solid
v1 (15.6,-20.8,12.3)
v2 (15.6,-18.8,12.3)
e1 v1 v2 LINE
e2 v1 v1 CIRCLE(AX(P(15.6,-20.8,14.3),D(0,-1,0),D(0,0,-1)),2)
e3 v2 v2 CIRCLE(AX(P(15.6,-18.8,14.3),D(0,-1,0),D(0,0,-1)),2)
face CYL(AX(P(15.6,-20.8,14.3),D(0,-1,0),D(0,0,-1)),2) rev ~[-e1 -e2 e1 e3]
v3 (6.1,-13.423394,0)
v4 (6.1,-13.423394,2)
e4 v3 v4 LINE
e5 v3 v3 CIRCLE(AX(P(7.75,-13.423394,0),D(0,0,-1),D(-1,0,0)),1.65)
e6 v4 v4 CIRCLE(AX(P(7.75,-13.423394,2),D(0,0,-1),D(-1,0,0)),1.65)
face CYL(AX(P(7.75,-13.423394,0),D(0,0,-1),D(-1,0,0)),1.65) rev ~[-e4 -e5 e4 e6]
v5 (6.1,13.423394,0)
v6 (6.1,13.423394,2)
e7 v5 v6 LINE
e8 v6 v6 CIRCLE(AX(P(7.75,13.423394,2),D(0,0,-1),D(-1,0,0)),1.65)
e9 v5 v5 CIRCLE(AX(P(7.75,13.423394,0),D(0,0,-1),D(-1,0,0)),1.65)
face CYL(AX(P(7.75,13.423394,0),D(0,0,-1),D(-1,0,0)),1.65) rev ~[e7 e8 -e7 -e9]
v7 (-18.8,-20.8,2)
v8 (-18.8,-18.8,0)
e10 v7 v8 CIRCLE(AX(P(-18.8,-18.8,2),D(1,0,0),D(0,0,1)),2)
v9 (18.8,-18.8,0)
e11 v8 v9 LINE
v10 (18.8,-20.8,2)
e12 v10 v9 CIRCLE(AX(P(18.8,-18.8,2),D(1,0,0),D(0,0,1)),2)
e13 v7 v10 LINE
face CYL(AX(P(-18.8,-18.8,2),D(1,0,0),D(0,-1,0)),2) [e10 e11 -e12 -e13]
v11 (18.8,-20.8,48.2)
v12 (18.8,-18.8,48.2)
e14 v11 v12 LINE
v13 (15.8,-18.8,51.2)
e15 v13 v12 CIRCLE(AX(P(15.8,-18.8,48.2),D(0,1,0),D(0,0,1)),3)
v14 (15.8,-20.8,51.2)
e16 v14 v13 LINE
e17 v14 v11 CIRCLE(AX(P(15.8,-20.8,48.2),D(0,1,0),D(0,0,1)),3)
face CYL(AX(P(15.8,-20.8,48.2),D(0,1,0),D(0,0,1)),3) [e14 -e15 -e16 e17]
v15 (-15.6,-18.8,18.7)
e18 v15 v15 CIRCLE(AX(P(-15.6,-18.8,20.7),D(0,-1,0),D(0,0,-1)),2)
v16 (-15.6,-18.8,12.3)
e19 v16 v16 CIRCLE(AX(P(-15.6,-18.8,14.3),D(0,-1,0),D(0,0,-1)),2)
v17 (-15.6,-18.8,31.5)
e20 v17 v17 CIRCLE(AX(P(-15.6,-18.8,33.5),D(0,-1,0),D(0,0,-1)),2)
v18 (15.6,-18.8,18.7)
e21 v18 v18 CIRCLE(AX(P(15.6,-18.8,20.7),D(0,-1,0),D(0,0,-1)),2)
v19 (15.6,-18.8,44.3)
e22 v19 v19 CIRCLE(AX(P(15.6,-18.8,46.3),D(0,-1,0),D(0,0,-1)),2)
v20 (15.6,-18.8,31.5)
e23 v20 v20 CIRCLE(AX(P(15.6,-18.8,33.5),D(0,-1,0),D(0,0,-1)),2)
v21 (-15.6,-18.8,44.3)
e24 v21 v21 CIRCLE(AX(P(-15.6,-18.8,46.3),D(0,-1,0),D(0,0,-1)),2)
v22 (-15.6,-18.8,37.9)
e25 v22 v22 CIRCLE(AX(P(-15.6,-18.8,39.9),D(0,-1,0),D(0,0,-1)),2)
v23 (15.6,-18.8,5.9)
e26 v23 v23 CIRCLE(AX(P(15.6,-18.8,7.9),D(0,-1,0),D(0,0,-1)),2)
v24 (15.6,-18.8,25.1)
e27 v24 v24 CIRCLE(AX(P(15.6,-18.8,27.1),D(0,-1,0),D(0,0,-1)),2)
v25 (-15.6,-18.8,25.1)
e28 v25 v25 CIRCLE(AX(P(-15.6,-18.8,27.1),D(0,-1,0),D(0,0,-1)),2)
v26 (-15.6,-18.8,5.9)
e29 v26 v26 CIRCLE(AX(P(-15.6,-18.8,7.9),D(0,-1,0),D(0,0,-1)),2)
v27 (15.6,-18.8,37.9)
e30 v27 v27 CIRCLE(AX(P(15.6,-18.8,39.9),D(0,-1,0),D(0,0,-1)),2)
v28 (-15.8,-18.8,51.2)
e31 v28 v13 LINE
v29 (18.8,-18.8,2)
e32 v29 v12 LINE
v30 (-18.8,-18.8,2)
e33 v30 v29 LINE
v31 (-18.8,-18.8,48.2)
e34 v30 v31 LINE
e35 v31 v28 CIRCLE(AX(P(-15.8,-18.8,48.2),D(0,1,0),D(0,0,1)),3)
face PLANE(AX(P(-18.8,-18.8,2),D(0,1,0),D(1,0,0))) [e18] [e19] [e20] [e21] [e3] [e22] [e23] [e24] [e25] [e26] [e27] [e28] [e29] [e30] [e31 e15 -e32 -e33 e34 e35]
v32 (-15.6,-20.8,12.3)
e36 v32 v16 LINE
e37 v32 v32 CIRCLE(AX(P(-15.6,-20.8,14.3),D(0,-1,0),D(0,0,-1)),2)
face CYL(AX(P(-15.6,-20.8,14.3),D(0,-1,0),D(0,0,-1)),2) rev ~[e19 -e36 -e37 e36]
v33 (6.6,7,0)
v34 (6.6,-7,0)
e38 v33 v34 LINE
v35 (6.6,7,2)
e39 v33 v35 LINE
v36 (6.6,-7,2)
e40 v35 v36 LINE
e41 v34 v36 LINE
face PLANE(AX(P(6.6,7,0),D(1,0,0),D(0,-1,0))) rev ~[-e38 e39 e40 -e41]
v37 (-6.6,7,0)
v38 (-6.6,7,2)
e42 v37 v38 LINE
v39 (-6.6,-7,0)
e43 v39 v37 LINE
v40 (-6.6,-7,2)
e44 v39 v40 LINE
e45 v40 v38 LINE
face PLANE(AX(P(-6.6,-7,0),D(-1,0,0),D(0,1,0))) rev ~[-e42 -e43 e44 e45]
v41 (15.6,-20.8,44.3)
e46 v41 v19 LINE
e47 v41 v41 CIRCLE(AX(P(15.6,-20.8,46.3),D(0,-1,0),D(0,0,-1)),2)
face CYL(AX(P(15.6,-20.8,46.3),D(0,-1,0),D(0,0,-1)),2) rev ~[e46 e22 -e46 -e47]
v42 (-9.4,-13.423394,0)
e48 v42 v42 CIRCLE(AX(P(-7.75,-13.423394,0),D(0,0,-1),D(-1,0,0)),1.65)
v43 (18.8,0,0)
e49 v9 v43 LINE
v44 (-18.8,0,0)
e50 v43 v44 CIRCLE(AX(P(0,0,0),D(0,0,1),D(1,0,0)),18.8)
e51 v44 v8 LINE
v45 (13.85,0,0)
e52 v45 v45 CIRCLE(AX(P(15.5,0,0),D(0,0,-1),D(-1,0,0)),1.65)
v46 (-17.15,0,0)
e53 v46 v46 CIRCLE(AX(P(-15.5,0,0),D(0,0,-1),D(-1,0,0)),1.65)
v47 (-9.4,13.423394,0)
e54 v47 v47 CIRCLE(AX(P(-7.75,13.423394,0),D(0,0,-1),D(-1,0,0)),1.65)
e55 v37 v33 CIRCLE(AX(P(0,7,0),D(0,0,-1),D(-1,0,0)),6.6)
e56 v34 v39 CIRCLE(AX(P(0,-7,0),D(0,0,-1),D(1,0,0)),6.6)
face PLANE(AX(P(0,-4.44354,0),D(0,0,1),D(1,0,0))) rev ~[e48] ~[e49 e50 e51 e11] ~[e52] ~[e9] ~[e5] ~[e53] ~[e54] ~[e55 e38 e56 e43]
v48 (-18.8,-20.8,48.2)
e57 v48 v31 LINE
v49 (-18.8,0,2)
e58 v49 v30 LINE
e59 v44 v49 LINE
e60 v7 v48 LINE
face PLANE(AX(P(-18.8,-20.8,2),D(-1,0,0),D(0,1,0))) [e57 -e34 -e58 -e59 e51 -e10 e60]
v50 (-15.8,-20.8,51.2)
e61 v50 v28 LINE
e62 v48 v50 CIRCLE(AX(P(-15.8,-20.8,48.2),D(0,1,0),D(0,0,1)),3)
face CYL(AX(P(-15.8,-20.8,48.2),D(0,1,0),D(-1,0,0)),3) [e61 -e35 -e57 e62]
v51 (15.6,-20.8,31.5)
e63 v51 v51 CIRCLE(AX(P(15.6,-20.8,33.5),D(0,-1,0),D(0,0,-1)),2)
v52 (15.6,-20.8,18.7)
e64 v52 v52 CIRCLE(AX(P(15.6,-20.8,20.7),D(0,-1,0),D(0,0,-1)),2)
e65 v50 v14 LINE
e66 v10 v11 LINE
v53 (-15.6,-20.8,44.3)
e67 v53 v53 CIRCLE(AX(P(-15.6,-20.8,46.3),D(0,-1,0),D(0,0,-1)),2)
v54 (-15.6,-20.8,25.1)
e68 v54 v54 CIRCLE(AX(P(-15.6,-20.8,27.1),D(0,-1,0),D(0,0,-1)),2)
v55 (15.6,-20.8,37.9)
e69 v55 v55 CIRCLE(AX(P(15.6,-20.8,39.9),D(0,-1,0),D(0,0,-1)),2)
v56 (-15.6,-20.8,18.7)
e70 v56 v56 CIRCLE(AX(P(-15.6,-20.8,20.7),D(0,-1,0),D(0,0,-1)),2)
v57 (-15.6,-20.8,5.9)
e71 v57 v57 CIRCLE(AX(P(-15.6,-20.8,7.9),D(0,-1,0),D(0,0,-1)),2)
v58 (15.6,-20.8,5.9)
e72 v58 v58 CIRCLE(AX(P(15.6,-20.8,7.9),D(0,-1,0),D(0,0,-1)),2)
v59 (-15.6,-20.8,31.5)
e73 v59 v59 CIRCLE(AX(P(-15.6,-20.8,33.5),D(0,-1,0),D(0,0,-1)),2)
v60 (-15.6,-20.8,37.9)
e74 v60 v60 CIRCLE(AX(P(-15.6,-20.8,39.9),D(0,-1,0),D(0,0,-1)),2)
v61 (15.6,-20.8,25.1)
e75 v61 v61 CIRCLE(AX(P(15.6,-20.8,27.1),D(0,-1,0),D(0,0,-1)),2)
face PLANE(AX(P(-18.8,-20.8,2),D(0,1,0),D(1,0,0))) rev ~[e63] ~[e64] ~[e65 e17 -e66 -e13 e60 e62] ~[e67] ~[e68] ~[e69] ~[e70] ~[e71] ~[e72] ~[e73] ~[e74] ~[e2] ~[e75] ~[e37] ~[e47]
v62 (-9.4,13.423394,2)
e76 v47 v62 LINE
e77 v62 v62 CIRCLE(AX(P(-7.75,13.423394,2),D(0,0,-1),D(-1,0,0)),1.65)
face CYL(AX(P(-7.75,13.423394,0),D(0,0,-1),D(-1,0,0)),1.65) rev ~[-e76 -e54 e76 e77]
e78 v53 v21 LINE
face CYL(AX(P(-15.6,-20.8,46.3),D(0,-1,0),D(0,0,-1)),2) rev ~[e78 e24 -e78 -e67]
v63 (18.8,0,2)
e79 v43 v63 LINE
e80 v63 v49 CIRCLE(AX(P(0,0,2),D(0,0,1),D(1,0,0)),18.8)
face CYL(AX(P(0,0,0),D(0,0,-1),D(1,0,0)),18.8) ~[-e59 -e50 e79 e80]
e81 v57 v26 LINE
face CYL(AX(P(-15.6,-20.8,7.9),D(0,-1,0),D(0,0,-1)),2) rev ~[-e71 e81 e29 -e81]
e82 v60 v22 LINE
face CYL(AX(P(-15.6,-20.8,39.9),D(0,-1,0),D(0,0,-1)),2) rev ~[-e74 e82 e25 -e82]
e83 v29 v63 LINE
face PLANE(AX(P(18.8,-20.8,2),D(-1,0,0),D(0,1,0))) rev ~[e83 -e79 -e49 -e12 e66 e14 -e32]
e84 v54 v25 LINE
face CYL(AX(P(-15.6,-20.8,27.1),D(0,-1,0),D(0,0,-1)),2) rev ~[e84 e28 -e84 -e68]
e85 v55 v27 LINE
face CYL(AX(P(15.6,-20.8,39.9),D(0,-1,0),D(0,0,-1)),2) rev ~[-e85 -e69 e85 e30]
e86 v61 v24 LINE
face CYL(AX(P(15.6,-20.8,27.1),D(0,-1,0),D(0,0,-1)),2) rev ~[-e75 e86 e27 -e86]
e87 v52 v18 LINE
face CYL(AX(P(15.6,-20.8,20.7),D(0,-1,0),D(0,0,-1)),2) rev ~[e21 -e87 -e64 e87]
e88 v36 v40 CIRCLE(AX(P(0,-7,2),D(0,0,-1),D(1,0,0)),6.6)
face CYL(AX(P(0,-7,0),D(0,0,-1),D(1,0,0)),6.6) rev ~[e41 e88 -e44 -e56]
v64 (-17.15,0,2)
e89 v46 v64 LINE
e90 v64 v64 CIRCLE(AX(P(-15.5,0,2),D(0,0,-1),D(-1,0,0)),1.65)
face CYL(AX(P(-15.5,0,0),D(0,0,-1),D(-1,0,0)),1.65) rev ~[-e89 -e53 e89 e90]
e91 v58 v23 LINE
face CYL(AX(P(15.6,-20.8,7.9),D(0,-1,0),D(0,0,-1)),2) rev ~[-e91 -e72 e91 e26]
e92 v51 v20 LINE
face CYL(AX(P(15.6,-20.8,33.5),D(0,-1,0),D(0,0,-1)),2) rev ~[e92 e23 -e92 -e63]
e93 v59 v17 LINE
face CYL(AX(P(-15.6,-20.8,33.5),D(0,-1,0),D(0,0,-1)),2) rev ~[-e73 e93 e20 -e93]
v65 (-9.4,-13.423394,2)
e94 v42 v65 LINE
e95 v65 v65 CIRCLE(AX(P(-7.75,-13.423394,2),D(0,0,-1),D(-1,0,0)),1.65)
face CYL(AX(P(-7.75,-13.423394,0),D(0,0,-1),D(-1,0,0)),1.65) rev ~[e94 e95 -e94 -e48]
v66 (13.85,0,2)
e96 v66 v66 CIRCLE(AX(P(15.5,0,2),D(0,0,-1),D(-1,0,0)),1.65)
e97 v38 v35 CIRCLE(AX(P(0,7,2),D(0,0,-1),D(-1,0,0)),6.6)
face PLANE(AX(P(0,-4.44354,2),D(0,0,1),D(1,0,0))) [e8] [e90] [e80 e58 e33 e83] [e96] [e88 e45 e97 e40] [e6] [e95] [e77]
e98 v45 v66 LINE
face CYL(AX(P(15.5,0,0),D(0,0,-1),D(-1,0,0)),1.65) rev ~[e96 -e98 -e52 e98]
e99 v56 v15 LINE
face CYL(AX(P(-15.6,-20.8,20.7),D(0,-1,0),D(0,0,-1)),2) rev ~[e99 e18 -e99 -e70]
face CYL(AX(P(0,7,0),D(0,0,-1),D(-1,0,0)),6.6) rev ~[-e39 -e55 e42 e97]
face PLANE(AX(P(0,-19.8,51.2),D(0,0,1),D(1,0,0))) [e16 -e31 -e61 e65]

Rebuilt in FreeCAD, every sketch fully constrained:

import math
import FreeCAD as App
import Part
import Sketcher
from FreeCAD import Vector


def edges_at(feature, points):
    """Names of the edges that pass closest to the given points."""
    edges = feature.Shape.Edges
    near = lambda p: min(range(len(edges)), key=lambda i: edges[i].distToShape(Part.Vertex(*p))[0])
    return sorted({f"Edge{near(p) + 1}" for p in points})

doc = App.newDocument("Part")
params = doc.addObject("Spreadsheet::Sheet", "Params")
for row, (alias, value) in enumerate([
    ("sketch1_radius", "18.8 mm"),
    ("sketch1_height", "20.8 mm"),
    ("pad1_length", "2 mm"),
    ("sketch2_height", "2 mm"),
    ("sketch2_width", "37.6 mm"),
    ("pad2_length", "49.2 mm"),
    ("fillet_radius", "2 mm"),
    ("fillet2_radius", "3 mm"),
    ("sketch3_diameter", "4 mm"),
    ("sketch4_diameter", "4 mm"),
    ("sketch5_diameter", "4 mm"),
    ("sketch6_diameter", "4 mm"),
    ("sketch7_diameter", "4 mm"),
    ("sketch8_diameter", "4 mm"),
    ("sketch9_diameter", "4 mm"),
    ("sketch10_diameter", "4 mm"),
    ("sketch11_diameter", "4 mm"),
    ("sketch12_diameter", "4 mm"),
    ("sketch13_diameter", "4 mm"),
    ("sketch14_diameter", "4 mm"),
    ("sketch15_diameter", "4 mm"),
    ("sketch16_diameter", "4 mm"),
    ("sketch17_diameter", "3.3 mm"),
    ("sketch18_diameter", "3.3 mm"),
    ("sketch19_diameter", "3.3 mm"),
    ("sketch20_diameter", "3.3 mm"),
    ("sketch21_diameter", "3.3 mm"),
    ("sketch22_diameter", "3.3 mm"),
    ("sketch23_radius", "6.6 mm"),
    ("sketch23_height", "14 mm"),
], start=1):
    params.set(f"A{row}", alias)
    params.set(f"B{row}", "=" + value)
    params.setAlias(f"B{row}", alias)

body = doc.addObject("PartDesign::Body", "Body")

# Sketch on XY plane
sketch1 = doc.addObject("Sketcher::SketchObject", "Sketch")
body.addObject(sketch1)
sketch1.AttachmentSupport = (doc.XY_Plane, [""])
sketch1.MapMode = "FlatFace"
sketch1.addGeometry(Part.LineSegment(Vector(-19, 0, 0), Vector(-19, -21, 0)), False)
sketch1.addGeometry(Part.LineSegment(Vector(-19, -21, 0), Vector(19, -21, 0)), False)
sketch1.addGeometry(Part.LineSegment(Vector(19, -21, 0), Vector(19, 0, 0)), False)
sketch1.addGeometry(Part.ArcOfCircle(Part.Circle(Vector(0, 0, 0), Vector(0, 0, 1), 19), math.radians(0), math.radians(180)), False)
sketch1.addConstraint(Sketcher.Constraint("Coincident", 0, 2, 1, 1))
sketch1.addConstraint(Sketcher.Constraint("Coincident", 1, 2, 2, 1))
sketch1.addConstraint(Sketcher.Constraint("Tangent", 2, 2, 3, 1))
sketch1.addConstraint(Sketcher.Constraint("Tangent", 3, 2, 0, 1))
sketch1.addConstraint(Sketcher.Constraint("Vertical", 0))
sketch1.addConstraint(Sketcher.Constraint("Horizontal", 1))
sketch1.addConstraint(Sketcher.Constraint("Vertical", 2))
sketch1.addConstraint(Sketcher.Constraint("Coincident", 3, 3, -1, 1))
sketch1.addConstraint(Sketcher.Constraint("Radius", 3, 18.8))
sketch1.addConstraint(Sketcher.Constraint("DistanceY", 0, 2, 0, 1, 20.8))
sketch1.setExpression("Constraints[8]", "Params.sketch1_radius")
sketch1.setExpression("Constraints[9]", "Params.sketch1_height")
pad1 = doc.addObject("PartDesign::Pad", "Pad")
body.addObject(pad1)
pad1.Profile = sketch1
pad1.setExpression("Length", "Params.pad1_length")

# Sketch on XY plane
sketch2 = doc.addObject("Sketcher::SketchObject", "Sketch001")
body.addObject(sketch2)
sketch2.AttachmentSupport = (doc.XY_Plane, [""])
sketch2.MapMode = "FlatFace"
sketch2.AttachmentOffset = App.Placement(Vector(0, 0, 2), App.Rotation())
sketch2.addGeometry(Part.LineSegment(Vector(-18.8, -18.8, 0), Vector(-18.8, -20.8, 0)), False)
sketch2.addGeometry(Part.LineSegment(Vector(-18.8, -20.8, 0), Vector(18.8, -20.8, 0)), False)
sketch2.addGeometry(Part.LineSegment(Vector(18.8, -20.8, 0), Vector(18.8, -18.8, 0)), False)
sketch2.addGeometry(Part.LineSegment(Vector(18.8, -18.8, 0), Vector(-18.8, -18.8, 0)), False)
sketch2.addConstraint(Sketcher.Constraint("Coincident", 0, 2, 1, 1))
sketch2.addConstraint(Sketcher.Constraint("Coincident", 1, 2, 2, 1))
sketch2.addConstraint(Sketcher.Constraint("Coincident", 2, 2, 3, 1))
sketch2.addConstraint(Sketcher.Constraint("Coincident", 3, 2, 0, 1))
sketch2.addConstraint(Sketcher.Constraint("Vertical", 0))
sketch2.addConstraint(Sketcher.Constraint("Horizontal", 1))
sketch2.addConstraint(Sketcher.Constraint("Vertical", 2))
sketch2.addConstraint(Sketcher.Constraint("Horizontal", 3))
sketch2.addConstraint(Sketcher.Constraint("DistanceY", 0, 2, 0, 1, 2.0))
sketch2.addConstraint(Sketcher.Constraint("DistanceX", 1, 1, 1, 2, 37.6))
sketch2.addConstraint(Sketcher.Constraint("DistanceX", 0, 2, -1, 1, 18.8))
sketch2.addConstraint(Sketcher.Constraint("DistanceY", 0, 2, -1, 1, 20.8))
sketch2.setExpression("Constraints[8]", "Params.sketch2_height")
sketch2.setExpression("Constraints[9]", "Params.sketch2_width")
pad2 = doc.addObject("PartDesign::Pad", "Pad001")
body.addObject(pad2)
pad2.Profile = sketch2
pad2.setExpression("Length", "Params.pad2_length")
doc.recompute()

fillet = doc.addObject("PartDesign::Fillet", "Fillet")
body.addObject(fillet)
fillet.Base = (pad2, edges_at(pad2, [(0, -20.8, 0)]))
fillet.setExpression("Radius", "Params.fillet_radius")
doc.recompute()

fillet2 = doc.addObject("PartDesign::Fillet", "Fillet001")
body.addObject(fillet2)
fillet2.Base = (fillet, edges_at(fillet, [(-18.8, -19.8, 51.2), (18.8, -19.8, 51.2)]))
fillet2.setExpression("Radius", "Params.fillet2_radius")

# Sketch on XZ plane
sketch3 = doc.addObject("Sketcher::SketchObject", "Sketch002")
body.addObject(sketch3)
sketch3.AttachmentSupport = (doc.XZ_Plane, [""])
sketch3.MapMode = "FlatFace"
sketch3.AttachmentOffset = App.Placement(Vector(0, 0, 20.8), App.Rotation())
sketch3.addGeometry(Part.Circle(Vector(-15.6, 46.3, 0), Vector(0, 0, 1), 2), False)
sketch3.addConstraint(Sketcher.Constraint("Diameter", 0, 4.0))
sketch3.addConstraint(Sketcher.Constraint("DistanceX", 0, 3, -1, 1, 15.6))
sketch3.addConstraint(Sketcher.Constraint("DistanceY", -1, 1, 0, 3, 46.3))
sketch3.setExpression("Constraints[0]", "Params.sketch3_diameter")
pocket1 = doc.addObject("PartDesign::Pocket", "Pocket")
body.addObject(pocket1)
pocket1.Profile = sketch3
pocket1.Type = "UpToFirst"

# Sketch on XZ plane
sketch4 = doc.addObject("Sketcher::SketchObject", "Sketch003")
body.addObject(sketch4)
sketch4.AttachmentSupport = (doc.XZ_Plane, [""])
sketch4.MapMode = "FlatFace"
sketch4.AttachmentOffset = App.Placement(Vector(0, 0, 20.8), App.Rotation())
sketch4.addGeometry(Part.Circle(Vector(15.6, 46.3, 0), Vector(0, 0, 1), 2), False)
sketch4.addConstraint(Sketcher.Constraint("Diameter", 0, 4.0))
sketch4.addConstraint(Sketcher.Constraint("DistanceX", -1, 1, 0, 3, 15.6))
sketch4.addConstraint(Sketcher.Constraint("DistanceY", -1, 1, 0, 3, 46.3))
sketch4.setExpression("Constraints[0]", "Params.sketch4_diameter")
pocket2 = doc.addObject("PartDesign::Pocket", "Pocket001")
body.addObject(pocket2)
pocket2.Profile = sketch4
pocket2.Type = "UpToFirst"

# Sketch on XZ plane
sketch5 = doc.addObject("Sketcher::SketchObject", "Sketch004")
body.addObject(sketch5)
sketch5.AttachmentSupport = (doc.XZ_Plane, [""])
sketch5.MapMode = "FlatFace"
sketch5.AttachmentOffset = App.Placement(Vector(0, 0, 20.8), App.Rotation())
sketch5.addGeometry(Part.Circle(Vector(-15.6, 39.9, 0), Vector(0, 0, 1), 2), False)
sketch5.addConstraint(Sketcher.Constraint("Diameter", 0, 4.0))
sketch5.addConstraint(Sketcher.Constraint("DistanceX", 0, 3, -1, 1, 15.6))
sketch5.addConstraint(Sketcher.Constraint("DistanceY", -1, 1, 0, 3, 39.9))
sketch5.setExpression("Constraints[0]", "Params.sketch5_diameter")
pocket3 = doc.addObject("PartDesign::Pocket", "Pocket002")
body.addObject(pocket3)
pocket3.Profile = sketch5
pocket3.Type = "UpToFirst"

# Sketch on XZ plane
sketch6 = doc.addObject("Sketcher::SketchObject", "Sketch005")
body.addObject(sketch6)
sketch6.AttachmentSupport = (doc.XZ_Plane, [""])
sketch6.MapMode = "FlatFace"
sketch6.AttachmentOffset = App.Placement(Vector(0, 0, 20.8), App.Rotation())
sketch6.addGeometry(Part.Circle(Vector(15.6, 39.9, 0), Vector(0, 0, 1), 2), False)
sketch6.addConstraint(Sketcher.Constraint("Diameter", 0, 4.0))
sketch6.addConstraint(Sketcher.Constraint("DistanceX", -1, 1, 0, 3, 15.6))
sketch6.addConstraint(Sketcher.Constraint("DistanceY", -1, 1, 0, 3, 39.9))
sketch6.setExpression("Constraints[0]", "Params.sketch6_diameter")
pocket4 = doc.addObject("PartDesign::Pocket", "Pocket003")
body.addObject(pocket4)
pocket4.Profile = sketch6
pocket4.Type = "UpToFirst"

# Sketch on XZ plane
sketch7 = doc.addObject("Sketcher::SketchObject", "Sketch006")
body.addObject(sketch7)
sketch7.AttachmentSupport = (doc.XZ_Plane, [""])
sketch7.MapMode = "FlatFace"
sketch7.AttachmentOffset = App.Placement(Vector(0, 0, 20.8), App.Rotation())
sketch7.addGeometry(Part.Circle(Vector(-15.6, 33.5, 0), Vector(0, 0, 1), 2), False)
sketch7.addConstraint(Sketcher.Constraint("Diameter", 0, 4.0))
sketch7.addConstraint(Sketcher.Constraint("DistanceX", 0, 3, -1, 1, 15.6))
sketch7.addConstraint(Sketcher.Constraint("DistanceY", -1, 1, 0, 3, 33.5))
sketch7.setExpression("Constraints[0]", "Params.sketch7_diameter")
pocket5 = doc.addObject("PartDesign::Pocket", "Pocket004")
body.addObject(pocket5)
pocket5.Profile = sketch7
pocket5.Type = "UpToFirst"

# Sketch on XZ plane
sketch8 = doc.addObject("Sketcher::SketchObject", "Sketch007")
body.addObject(sketch8)
sketch8.AttachmentSupport = (doc.XZ_Plane, [""])
sketch8.MapMode = "FlatFace"
sketch8.AttachmentOffset = App.Placement(Vector(0, 0, 20.8), App.Rotation())
sketch8.addGeometry(Part.Circle(Vector(15.6, 33.5, 0), Vector(0, 0, 1), 2), False)
sketch8.addConstraint(Sketcher.Constraint("Diameter", 0, 4.0))
sketch8.addConstraint(Sketcher.Constraint("DistanceX", -1, 1, 0, 3, 15.6))
sketch8.addConstraint(Sketcher.Constraint("DistanceY", -1, 1, 0, 3, 33.5))
sketch8.setExpression("Constraints[0]", "Params.sketch8_diameter")
pocket6 = doc.addObject("PartDesign::Pocket", "Pocket005")
body.addObject(pocket6)
pocket6.Profile = sketch8
pocket6.Type = "UpToFirst"

# Sketch on XZ plane
sketch9 = doc.addObject("Sketcher::SketchObject", "Sketch008")
body.addObject(sketch9)
sketch9.AttachmentSupport = (doc.XZ_Plane, [""])
sketch9.MapMode = "FlatFace"
sketch9.AttachmentOffset = App.Placement(Vector(0, 0, 20.8), App.Rotation())
sketch9.addGeometry(Part.Circle(Vector(-15.6, 27.1, 0), Vector(0, 0, 1), 2), False)
sketch9.addConstraint(Sketcher.Constraint("Diameter", 0, 4.0))
sketch9.addConstraint(Sketcher.Constraint("DistanceX", 0, 3, -1, 1, 15.6))
sketch9.addConstraint(Sketcher.Constraint("DistanceY", -1, 1, 0, 3, 27.1))
sketch9.setExpression("Constraints[0]", "Params.sketch9_diameter")
pocket7 = doc.addObject("PartDesign::Pocket", "Pocket006")
body.addObject(pocket7)
pocket7.Profile = sketch9
pocket7.Type = "UpToFirst"

# Sketch on XZ plane
sketch10 = doc.addObject("Sketcher::SketchObject", "Sketch009")
body.addObject(sketch10)
sketch10.AttachmentSupport = (doc.XZ_Plane, [""])
sketch10.MapMode = "FlatFace"
sketch10.AttachmentOffset = App.Placement(Vector(0, 0, 20.8), App.Rotation())
sketch10.addGeometry(Part.Circle(Vector(15.6, 27.1, 0), Vector(0, 0, 1), 2), False)
sketch10.addConstraint(Sketcher.Constraint("Diameter", 0, 4.0))
sketch10.addConstraint(Sketcher.Constraint("DistanceX", -1, 1, 0, 3, 15.6))
sketch10.addConstraint(Sketcher.Constraint("DistanceY", -1, 1, 0, 3, 27.1))
sketch10.setExpression("Constraints[0]", "Params.sketch10_diameter")
pocket8 = doc.addObject("PartDesign::Pocket", "Pocket007")
body.addObject(pocket8)
pocket8.Profile = sketch10
pocket8.Type = "UpToFirst"

# Sketch on XZ plane
sketch11 = doc.addObject("Sketcher::SketchObject", "Sketch010")
body.addObject(sketch11)
sketch11.AttachmentSupport = (doc.XZ_Plane, [""])
sketch11.MapMode = "FlatFace"
sketch11.AttachmentOffset = App.Placement(Vector(0, 0, 20.8), App.Rotation())
sketch11.addGeometry(Part.Circle(Vector(-15.6, 20.7, 0), Vector(0, 0, 1), 2), False)
sketch11.addConstraint(Sketcher.Constraint("Diameter", 0, 4.0))
sketch11.addConstraint(Sketcher.Constraint("DistanceX", 0, 3, -1, 1, 15.6))
sketch11.addConstraint(Sketcher.Constraint("DistanceY", -1, 1, 0, 3, 20.7))
sketch11.setExpression("Constraints[0]", "Params.sketch11_diameter")
pocket9 = doc.addObject("PartDesign::Pocket", "Pocket008")
body.addObject(pocket9)
pocket9.Profile = sketch11
pocket9.Type = "UpToFirst"

# Sketch on XZ plane
sketch12 = doc.addObject("Sketcher::SketchObject", "Sketch011")
body.addObject(sketch12)
sketch12.AttachmentSupport = (doc.XZ_Plane, [""])
sketch12.MapMode = "FlatFace"
sketch12.AttachmentOffset = App.Placement(Vector(0, 0, 20.8), App.Rotation())
sketch12.addGeometry(Part.Circle(Vector(15.6, 20.7, 0), Vector(0, 0, 1), 2), False)
sketch12.addConstraint(Sketcher.Constraint("Diameter", 0, 4.0))
sketch12.addConstraint(Sketcher.Constraint("DistanceX", -1, 1, 0, 3, 15.6))
sketch12.addConstraint(Sketcher.Constraint("DistanceY", -1, 1, 0, 3, 20.7))
sketch12.setExpression("Constraints[0]", "Params.sketch12_diameter")
pocket10 = doc.addObject("PartDesign::Pocket", "Pocket009")
body.addObject(pocket10)
pocket10.Profile = sketch12
pocket10.Type = "UpToFirst"

# Sketch on XZ plane
sketch13 = doc.addObject("Sketcher::SketchObject", "Sketch012")
body.addObject(sketch13)
sketch13.AttachmentSupport = (doc.XZ_Plane, [""])
sketch13.MapMode = "FlatFace"
sketch13.AttachmentOffset = App.Placement(Vector(0, 0, 20.8), App.Rotation())
sketch13.addGeometry(Part.Circle(Vector(-15.6, 14.3, 0), Vector(0, 0, 1), 2), False)
sketch13.addConstraint(Sketcher.Constraint("Diameter", 0, 4.0))
sketch13.addConstraint(Sketcher.Constraint("DistanceX", 0, 3, -1, 1, 15.6))
sketch13.addConstraint(Sketcher.Constraint("DistanceY", -1, 1, 0, 3, 14.3))
sketch13.setExpression("Constraints[0]", "Params.sketch13_diameter")
pocket11 = doc.addObject("PartDesign::Pocket", "Pocket010")
body.addObject(pocket11)
pocket11.Profile = sketch13
pocket11.Type = "UpToFirst"

# Sketch on XZ plane
sketch14 = doc.addObject("Sketcher::SketchObject", "Sketch013")
body.addObject(sketch14)
sketch14.AttachmentSupport = (doc.XZ_Plane, [""])
sketch14.MapMode = "FlatFace"
sketch14.AttachmentOffset = App.Placement(Vector(0, 0, 20.8), App.Rotation())
sketch14.addGeometry(Part.Circle(Vector(15.6, 14.3, 0), Vector(0, 0, 1), 2), False)
sketch14.addConstraint(Sketcher.Constraint("Diameter", 0, 4.0))
sketch14.addConstraint(Sketcher.Constraint("DistanceX", -1, 1, 0, 3, 15.6))
sketch14.addConstraint(Sketcher.Constraint("DistanceY", -1, 1, 0, 3, 14.3))
sketch14.setExpression("Constraints[0]", "Params.sketch14_diameter")
pocket12 = doc.addObject("PartDesign::Pocket", "Pocket011")
body.addObject(pocket12)
pocket12.Profile = sketch14
pocket12.Type = "UpToFirst"

# Sketch on XZ plane
sketch15 = doc.addObject("Sketcher::SketchObject", "Sketch014")
body.addObject(sketch15)
sketch15.AttachmentSupport = (doc.XZ_Plane, [""])
sketch15.MapMode = "FlatFace"
sketch15.AttachmentOffset = App.Placement(Vector(0, 0, 20.8), App.Rotation())
sketch15.addGeometry(Part.Circle(Vector(-15.6, 7.9, 0), Vector(0, 0, 1), 2), False)
sketch15.addConstraint(Sketcher.Constraint("Diameter", 0, 4.0))
sketch15.addConstraint(Sketcher.Constraint("DistanceX", 0, 3, -1, 1, 15.6))
sketch15.addConstraint(Sketcher.Constraint("DistanceY", -1, 1, 0, 3, 7.9))
sketch15.setExpression("Constraints[0]", "Params.sketch15_diameter")
pocket13 = doc.addObject("PartDesign::Pocket", "Pocket012")
body.addObject(pocket13)
pocket13.Profile = sketch15
pocket13.Type = "UpToFirst"

# Sketch on XZ plane
sketch16 = doc.addObject("Sketcher::SketchObject", "Sketch015")
body.addObject(sketch16)
sketch16.AttachmentSupport = (doc.XZ_Plane, [""])
sketch16.MapMode = "FlatFace"
sketch16.AttachmentOffset = App.Placement(Vector(0, 0, 20.8), App.Rotation())
sketch16.addGeometry(Part.Circle(Vector(15.6, 7.9, 0), Vector(0, 0, 1), 2), False)
sketch16.addConstraint(Sketcher.Constraint("Diameter", 0, 4.0))
sketch16.addConstraint(Sketcher.Constraint("DistanceX", -1, 1, 0, 3, 15.6))
sketch16.addConstraint(Sketcher.Constraint("DistanceY", -1, 1, 0, 3, 7.9))
sketch16.setExpression("Constraints[0]", "Params.sketch16_diameter")
pocket14 = doc.addObject("PartDesign::Pocket", "Pocket013")
body.addObject(pocket14)
pocket14.Profile = sketch16
pocket14.Type = "UpToFirst"

# Sketch on XY plane
sketch17 = doc.addObject("Sketcher::SketchObject", "Sketch016")
body.addObject(sketch17)
sketch17.AttachmentSupport = (doc.XY_Plane, [""])
sketch17.MapMode = "FlatFace"
sketch17.addGeometry(Part.Circle(Vector(-15.5, 0, 0), Vector(0, 0, 1), 1.6), False)
sketch17.addConstraint(Sketcher.Constraint("PointOnObject", 0, 3, -1))
sketch17.addConstraint(Sketcher.Constraint("Diameter", 0, 3.3))
sketch17.addConstraint(Sketcher.Constraint("DistanceX", 0, 3, -1, 1, 15.5))
sketch17.setExpression("Constraints[1]", "Params.sketch17_diameter")
pocket15 = doc.addObject("PartDesign::Pocket", "Pocket014")
body.addObject(pocket15)
pocket15.Profile = sketch17
pocket15.Type = "UpToFirst"
pocket15.Reversed = True

# Sketch on XY plane
sketch18 = doc.addObject("Sketcher::SketchObject", "Sketch017")
body.addObject(sketch18)
sketch18.AttachmentSupport = (doc.XY_Plane, [""])
sketch18.MapMode = "FlatFace"
sketch18.addGeometry(Part.Circle(Vector(-7.8, -13.4, 0), Vector(0, 0, 1), 1.6), False)
sketch18.addConstraint(Sketcher.Constraint("Diameter", 0, 3.3))
sketch18.addConstraint(Sketcher.Constraint("DistanceX", 0, 3, -1, 1, 7.75))
sketch18.addConstraint(Sketcher.Constraint("DistanceY", 0, 3, -1, 1, 13.423394))
sketch18.setExpression("Constraints[0]", "Params.sketch18_diameter")
pocket16 = doc.addObject("PartDesign::Pocket", "Pocket015")
body.addObject(pocket16)
pocket16.Profile = sketch18
pocket16.Type = "UpToFirst"
pocket16.Reversed = True

# Sketch on XY plane
sketch19 = doc.addObject("Sketcher::SketchObject", "Sketch018")
body.addObject(sketch19)
sketch19.AttachmentSupport = (doc.XY_Plane, [""])
sketch19.MapMode = "FlatFace"
sketch19.addGeometry(Part.Circle(Vector(7.8, -13.4, 0), Vector(0, 0, 1), 1.6), False)
sketch19.addConstraint(Sketcher.Constraint("Diameter", 0, 3.3))
sketch19.addConstraint(Sketcher.Constraint("DistanceX", -1, 1, 0, 3, 7.75))
sketch19.addConstraint(Sketcher.Constraint("DistanceY", 0, 3, -1, 1, 13.423394))
sketch19.setExpression("Constraints[0]", "Params.sketch19_diameter")
pocket17 = doc.addObject("PartDesign::Pocket", "Pocket016")
body.addObject(pocket17)
pocket17.Profile = sketch19
pocket17.Type = "UpToFirst"
pocket17.Reversed = True

# Sketch on XY plane
sketch20 = doc.addObject("Sketcher::SketchObject", "Sketch019")
body.addObject(sketch20)
sketch20.AttachmentSupport = (doc.XY_Plane, [""])
sketch20.MapMode = "FlatFace"
sketch20.addGeometry(Part.Circle(Vector(15.5, 0, 0), Vector(0, 0, 1), 1.6), False)
sketch20.addConstraint(Sketcher.Constraint("PointOnObject", 0, 3, -1))
sketch20.addConstraint(Sketcher.Constraint("Diameter", 0, 3.3))
sketch20.addConstraint(Sketcher.Constraint("DistanceX", -1, 1, 0, 3, 15.5))
sketch20.setExpression("Constraints[1]", "Params.sketch20_diameter")
pocket18 = doc.addObject("PartDesign::Pocket", "Pocket017")
body.addObject(pocket18)
pocket18.Profile = sketch20
pocket18.Type = "UpToFirst"
pocket18.Reversed = True

# Sketch on XY plane
sketch21 = doc.addObject("Sketcher::SketchObject", "Sketch020")
body.addObject(sketch21)
sketch21.AttachmentSupport = (doc.XY_Plane, [""])
sketch21.MapMode = "FlatFace"
sketch21.addGeometry(Part.Circle(Vector(7.8, 13.4, 0), Vector(0, 0, 1), 1.6), False)
sketch21.addConstraint(Sketcher.Constraint("Diameter", 0, 3.3))
sketch21.addConstraint(Sketcher.Constraint("DistanceX", -1, 1, 0, 3, 7.75))
sketch21.addConstraint(Sketcher.Constraint("DistanceY", -1, 1, 0, 3, 13.423394))
sketch21.setExpression("Constraints[0]", "Params.sketch21_diameter")
pocket19 = doc.addObject("PartDesign::Pocket", "Pocket018")
body.addObject(pocket19)
pocket19.Profile = sketch21
pocket19.Type = "UpToFirst"
pocket19.Reversed = True

# Sketch on XY plane
sketch22 = doc.addObject("Sketcher::SketchObject", "Sketch021")
body.addObject(sketch22)
sketch22.AttachmentSupport = (doc.XY_Plane, [""])
sketch22.MapMode = "FlatFace"
sketch22.addGeometry(Part.Circle(Vector(-7.8, 13.4, 0), Vector(0, 0, 1), 1.6), False)
sketch22.addConstraint(Sketcher.Constraint("Diameter", 0, 3.3))
sketch22.addConstraint(Sketcher.Constraint("DistanceX", 0, 3, -1, 1, 7.75))
sketch22.addConstraint(Sketcher.Constraint("DistanceY", -1, 1, 0, 3, 13.423394))
sketch22.setExpression("Constraints[0]", "Params.sketch22_diameter")
pocket20 = doc.addObject("PartDesign::Pocket", "Pocket019")
body.addObject(pocket20)
pocket20.Profile = sketch22
pocket20.Type = "UpToFirst"
pocket20.Reversed = True

# Sketch on XY plane
sketch23 = doc.addObject("Sketcher::SketchObject", "Sketch022")
body.addObject(sketch23)
sketch23.AttachmentSupport = (doc.XY_Plane, [""])
sketch23.MapMode = "FlatFace"
sketch23.addGeometry(Part.LineSegment(Vector(7, 7, 0), Vector(7, -7, 0)), False)
sketch23.addGeometry(Part.ArcOfCircle(Part.Circle(Vector(0, -7, 0), Vector(0, 0, 1), 7), math.radians(180), math.radians(360)), False)
sketch23.addGeometry(Part.LineSegment(Vector(-7, -7, 0), Vector(-7, 7, 0)), False)
sketch23.addGeometry(Part.ArcOfCircle(Part.Circle(Vector(0, 7, 0), Vector(0, 0, 1), 7), math.radians(0), math.radians(180)), False)
sketch23.addConstraint(Sketcher.Constraint("Tangent", 0, 2, 1, 2))
sketch23.addConstraint(Sketcher.Constraint("Tangent", 1, 1, 2, 1))
sketch23.addConstraint(Sketcher.Constraint("Tangent", 2, 2, 3, 2))
sketch23.addConstraint(Sketcher.Constraint("Tangent", 3, 1, 0, 1))
sketch23.addConstraint(Sketcher.Constraint("Vertical", 0))
sketch23.addConstraint(Sketcher.Constraint("Vertical", 2))
sketch23.addConstraint(Sketcher.Constraint("Symmetric", 1, 3, 3, 3, -1, 1))
sketch23.addConstraint(Sketcher.Constraint("Radius", 1, 6.6))
sketch23.addConstraint(Sketcher.Constraint("DistanceY", 0, 2, 0, 1, 14.0))
sketch23.setExpression("Constraints[7]", "Params.sketch23_radius")
sketch23.setExpression("Constraints[8]", "Params.sketch23_height")
pocket21 = doc.addObject("PartDesign::Pocket", "Pocket020")
body.addObject(pocket21)
pocket21.Profile = sketch23
pocket21.Type = "UpToFirst"
pocket21.Reversed = True

doc.recompute()
